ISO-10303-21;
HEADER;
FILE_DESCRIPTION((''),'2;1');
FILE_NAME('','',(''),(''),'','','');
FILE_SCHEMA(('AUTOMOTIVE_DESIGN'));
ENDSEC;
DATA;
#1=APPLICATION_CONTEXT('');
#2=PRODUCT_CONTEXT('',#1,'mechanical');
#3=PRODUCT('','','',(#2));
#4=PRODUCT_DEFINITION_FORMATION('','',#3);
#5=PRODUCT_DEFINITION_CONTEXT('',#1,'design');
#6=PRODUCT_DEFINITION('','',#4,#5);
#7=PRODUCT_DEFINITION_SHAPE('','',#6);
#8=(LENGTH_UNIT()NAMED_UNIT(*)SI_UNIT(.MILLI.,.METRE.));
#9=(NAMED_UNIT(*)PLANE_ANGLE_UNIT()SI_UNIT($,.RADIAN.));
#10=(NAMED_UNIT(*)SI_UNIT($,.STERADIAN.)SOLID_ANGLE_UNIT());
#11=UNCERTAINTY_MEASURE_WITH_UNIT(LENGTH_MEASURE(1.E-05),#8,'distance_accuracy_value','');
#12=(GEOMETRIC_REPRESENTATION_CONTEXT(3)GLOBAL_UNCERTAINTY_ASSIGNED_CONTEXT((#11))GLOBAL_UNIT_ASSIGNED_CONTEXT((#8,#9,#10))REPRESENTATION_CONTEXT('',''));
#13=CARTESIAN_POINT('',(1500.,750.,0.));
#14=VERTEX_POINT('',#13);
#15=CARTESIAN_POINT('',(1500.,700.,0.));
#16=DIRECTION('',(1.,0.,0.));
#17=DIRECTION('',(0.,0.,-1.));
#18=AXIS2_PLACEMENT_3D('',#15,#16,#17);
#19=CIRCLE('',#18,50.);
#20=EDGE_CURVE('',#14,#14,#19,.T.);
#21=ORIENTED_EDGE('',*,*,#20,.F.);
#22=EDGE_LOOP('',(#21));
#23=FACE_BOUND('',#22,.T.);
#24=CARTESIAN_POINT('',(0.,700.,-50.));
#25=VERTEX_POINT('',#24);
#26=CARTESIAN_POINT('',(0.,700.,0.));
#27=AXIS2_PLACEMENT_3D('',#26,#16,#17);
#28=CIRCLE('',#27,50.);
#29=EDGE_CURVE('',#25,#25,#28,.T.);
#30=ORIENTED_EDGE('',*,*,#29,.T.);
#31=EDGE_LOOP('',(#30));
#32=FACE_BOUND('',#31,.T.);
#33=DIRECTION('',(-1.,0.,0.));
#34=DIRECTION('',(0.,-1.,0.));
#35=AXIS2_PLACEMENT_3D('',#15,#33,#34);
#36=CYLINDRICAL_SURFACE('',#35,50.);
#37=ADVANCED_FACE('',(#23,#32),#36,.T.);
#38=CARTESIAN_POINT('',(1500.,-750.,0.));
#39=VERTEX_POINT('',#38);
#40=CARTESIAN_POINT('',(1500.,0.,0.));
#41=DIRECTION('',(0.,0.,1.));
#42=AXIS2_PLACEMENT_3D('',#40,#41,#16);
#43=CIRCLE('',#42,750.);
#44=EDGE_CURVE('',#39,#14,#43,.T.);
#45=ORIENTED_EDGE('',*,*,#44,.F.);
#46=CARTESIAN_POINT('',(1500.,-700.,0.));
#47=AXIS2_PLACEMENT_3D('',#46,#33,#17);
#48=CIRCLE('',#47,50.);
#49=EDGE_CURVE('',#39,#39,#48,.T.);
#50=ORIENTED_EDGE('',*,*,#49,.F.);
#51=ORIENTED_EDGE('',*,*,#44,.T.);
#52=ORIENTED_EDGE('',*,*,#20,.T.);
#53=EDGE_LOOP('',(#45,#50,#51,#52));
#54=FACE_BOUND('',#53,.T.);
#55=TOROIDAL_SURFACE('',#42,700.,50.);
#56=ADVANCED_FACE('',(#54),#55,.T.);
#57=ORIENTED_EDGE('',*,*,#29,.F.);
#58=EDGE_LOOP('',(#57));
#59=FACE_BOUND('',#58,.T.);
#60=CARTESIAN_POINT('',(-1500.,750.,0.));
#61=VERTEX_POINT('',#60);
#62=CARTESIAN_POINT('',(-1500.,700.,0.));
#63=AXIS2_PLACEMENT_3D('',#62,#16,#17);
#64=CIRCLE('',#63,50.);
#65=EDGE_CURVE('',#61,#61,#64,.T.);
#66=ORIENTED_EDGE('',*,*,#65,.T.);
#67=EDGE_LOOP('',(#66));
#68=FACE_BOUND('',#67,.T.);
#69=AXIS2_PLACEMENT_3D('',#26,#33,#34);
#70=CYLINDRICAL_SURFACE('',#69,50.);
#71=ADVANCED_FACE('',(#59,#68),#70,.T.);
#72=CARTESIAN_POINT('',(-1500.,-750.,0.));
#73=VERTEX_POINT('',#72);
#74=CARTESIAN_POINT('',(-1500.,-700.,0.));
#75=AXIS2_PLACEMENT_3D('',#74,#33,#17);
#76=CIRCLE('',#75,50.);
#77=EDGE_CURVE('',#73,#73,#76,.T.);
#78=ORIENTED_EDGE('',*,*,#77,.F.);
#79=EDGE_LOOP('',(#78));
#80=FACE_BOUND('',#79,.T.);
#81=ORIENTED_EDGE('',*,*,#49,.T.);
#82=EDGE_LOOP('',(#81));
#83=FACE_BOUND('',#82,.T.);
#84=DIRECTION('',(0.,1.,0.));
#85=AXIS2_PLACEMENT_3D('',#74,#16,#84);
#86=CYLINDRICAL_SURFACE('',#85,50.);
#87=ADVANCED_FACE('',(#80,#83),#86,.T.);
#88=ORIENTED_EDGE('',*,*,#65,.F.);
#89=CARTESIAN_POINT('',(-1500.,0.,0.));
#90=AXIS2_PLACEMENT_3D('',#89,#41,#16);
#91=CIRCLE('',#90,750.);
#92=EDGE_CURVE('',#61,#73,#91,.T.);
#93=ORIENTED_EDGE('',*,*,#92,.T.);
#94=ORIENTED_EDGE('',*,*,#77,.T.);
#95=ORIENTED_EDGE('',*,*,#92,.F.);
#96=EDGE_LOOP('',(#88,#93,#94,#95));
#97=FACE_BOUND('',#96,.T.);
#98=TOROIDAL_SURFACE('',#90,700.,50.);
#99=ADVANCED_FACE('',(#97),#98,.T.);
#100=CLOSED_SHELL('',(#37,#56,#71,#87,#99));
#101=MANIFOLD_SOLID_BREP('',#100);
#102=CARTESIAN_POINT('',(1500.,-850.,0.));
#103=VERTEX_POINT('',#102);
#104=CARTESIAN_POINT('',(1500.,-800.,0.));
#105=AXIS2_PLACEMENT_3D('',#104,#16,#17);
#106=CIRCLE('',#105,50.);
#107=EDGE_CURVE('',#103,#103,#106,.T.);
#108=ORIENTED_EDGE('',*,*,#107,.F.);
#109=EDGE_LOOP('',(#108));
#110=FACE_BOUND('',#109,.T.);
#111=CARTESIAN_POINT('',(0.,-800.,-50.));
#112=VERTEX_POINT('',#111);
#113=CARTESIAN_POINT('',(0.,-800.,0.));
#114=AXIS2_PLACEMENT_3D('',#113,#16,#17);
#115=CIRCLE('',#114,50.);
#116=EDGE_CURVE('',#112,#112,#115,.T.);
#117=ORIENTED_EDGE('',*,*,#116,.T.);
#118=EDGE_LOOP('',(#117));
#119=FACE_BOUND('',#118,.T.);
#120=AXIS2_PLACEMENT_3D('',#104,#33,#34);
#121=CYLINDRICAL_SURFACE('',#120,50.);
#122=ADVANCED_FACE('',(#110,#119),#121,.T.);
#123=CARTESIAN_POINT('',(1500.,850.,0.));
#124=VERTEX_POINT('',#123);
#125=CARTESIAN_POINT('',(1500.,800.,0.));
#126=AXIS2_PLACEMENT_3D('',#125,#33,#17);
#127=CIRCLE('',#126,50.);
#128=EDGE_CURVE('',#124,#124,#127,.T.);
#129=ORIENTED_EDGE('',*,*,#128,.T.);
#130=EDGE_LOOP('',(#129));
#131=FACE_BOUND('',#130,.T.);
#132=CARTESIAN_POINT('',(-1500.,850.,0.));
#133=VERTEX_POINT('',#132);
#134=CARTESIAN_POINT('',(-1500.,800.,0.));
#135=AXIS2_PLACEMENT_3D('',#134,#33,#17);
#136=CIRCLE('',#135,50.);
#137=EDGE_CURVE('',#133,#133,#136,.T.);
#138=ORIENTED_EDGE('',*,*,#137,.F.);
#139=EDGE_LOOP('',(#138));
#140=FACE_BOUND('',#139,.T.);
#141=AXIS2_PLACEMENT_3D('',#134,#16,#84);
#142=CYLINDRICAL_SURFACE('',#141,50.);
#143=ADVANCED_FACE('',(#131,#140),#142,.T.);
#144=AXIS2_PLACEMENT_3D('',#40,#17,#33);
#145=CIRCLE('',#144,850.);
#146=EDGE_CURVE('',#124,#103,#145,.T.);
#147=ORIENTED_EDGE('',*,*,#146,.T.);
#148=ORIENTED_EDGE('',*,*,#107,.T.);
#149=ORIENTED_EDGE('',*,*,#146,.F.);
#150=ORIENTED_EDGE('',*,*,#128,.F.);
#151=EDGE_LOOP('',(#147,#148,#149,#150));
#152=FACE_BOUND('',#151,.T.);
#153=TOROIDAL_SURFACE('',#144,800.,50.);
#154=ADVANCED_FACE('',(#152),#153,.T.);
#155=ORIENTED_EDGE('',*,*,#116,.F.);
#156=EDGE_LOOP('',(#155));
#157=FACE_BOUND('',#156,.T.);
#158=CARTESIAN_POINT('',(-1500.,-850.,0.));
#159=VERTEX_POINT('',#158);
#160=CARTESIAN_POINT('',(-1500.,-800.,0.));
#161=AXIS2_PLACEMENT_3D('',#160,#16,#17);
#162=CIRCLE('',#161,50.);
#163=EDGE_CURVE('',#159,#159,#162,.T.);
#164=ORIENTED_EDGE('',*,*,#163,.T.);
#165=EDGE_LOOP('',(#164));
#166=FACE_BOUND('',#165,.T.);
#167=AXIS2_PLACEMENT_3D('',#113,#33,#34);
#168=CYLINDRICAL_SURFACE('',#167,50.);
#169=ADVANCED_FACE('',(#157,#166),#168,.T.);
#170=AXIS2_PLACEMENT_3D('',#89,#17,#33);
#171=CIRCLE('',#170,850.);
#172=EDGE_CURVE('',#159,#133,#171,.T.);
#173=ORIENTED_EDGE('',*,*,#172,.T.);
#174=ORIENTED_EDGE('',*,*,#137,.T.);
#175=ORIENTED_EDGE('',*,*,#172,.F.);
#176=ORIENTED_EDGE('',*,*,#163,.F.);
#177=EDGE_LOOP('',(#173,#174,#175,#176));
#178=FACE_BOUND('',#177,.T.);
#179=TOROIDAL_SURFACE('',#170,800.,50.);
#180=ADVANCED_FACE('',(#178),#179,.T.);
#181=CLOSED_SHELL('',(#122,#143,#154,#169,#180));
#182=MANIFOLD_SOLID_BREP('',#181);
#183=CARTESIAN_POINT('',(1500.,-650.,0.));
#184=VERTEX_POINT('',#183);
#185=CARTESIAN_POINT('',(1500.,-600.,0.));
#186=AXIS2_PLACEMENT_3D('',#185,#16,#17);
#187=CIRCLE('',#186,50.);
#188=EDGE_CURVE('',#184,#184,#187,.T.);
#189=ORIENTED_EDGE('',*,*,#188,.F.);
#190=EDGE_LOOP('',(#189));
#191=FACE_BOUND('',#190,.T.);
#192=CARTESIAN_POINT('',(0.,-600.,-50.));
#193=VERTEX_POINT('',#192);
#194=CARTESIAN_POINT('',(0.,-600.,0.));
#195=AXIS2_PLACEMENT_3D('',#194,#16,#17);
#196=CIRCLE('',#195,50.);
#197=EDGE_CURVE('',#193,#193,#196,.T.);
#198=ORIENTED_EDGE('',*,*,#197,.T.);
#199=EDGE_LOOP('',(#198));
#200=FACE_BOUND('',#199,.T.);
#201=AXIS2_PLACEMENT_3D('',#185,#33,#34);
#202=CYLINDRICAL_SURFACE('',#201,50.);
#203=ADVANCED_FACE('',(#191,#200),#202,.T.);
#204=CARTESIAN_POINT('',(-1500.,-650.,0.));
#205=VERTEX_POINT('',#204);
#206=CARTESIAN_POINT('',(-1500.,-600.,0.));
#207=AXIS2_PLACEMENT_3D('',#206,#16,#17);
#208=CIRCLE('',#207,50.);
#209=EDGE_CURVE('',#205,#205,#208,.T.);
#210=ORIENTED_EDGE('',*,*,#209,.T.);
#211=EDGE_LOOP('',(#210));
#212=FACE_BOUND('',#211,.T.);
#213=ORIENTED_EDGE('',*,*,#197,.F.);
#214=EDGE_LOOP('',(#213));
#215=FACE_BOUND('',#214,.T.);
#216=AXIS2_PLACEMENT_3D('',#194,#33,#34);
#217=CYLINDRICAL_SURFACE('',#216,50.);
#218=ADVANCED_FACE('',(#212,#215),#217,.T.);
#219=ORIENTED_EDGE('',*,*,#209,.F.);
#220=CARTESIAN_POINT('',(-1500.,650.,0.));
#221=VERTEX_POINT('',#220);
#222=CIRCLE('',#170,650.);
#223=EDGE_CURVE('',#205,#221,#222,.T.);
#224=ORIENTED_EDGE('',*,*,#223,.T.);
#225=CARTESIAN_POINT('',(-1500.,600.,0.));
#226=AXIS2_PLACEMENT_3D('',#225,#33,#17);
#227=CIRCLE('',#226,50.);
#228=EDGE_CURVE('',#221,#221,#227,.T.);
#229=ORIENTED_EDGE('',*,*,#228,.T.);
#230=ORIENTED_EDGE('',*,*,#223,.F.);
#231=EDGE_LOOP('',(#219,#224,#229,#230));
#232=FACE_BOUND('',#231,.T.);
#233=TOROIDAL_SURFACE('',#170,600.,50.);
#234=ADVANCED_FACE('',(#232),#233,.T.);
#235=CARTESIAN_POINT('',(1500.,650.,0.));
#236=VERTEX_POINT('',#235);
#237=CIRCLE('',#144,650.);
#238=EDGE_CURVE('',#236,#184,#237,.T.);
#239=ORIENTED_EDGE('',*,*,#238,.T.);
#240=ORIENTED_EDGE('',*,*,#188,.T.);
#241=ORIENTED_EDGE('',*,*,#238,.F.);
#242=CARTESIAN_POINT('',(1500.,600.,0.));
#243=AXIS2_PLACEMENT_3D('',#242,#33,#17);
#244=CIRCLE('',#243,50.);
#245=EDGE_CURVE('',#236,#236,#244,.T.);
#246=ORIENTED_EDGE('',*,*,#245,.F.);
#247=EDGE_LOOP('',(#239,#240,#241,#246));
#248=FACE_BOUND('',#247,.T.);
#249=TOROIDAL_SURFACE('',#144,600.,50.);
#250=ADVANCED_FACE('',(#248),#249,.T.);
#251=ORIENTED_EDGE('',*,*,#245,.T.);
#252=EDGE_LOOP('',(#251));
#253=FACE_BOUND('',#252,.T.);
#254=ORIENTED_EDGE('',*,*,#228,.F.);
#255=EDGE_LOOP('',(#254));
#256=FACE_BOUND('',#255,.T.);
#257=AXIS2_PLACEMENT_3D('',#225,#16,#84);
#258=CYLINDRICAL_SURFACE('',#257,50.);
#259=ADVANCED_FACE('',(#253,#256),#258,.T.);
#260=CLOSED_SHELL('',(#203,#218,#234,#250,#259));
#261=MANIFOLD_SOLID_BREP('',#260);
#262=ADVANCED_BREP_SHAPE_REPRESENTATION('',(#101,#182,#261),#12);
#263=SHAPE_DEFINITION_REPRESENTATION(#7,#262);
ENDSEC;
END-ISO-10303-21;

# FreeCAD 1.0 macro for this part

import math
import FreeCAD as App
import Part
import Sketcher
from FreeCAD import Vector

doc = App.newDocument("Part")
body = doc.addObject("PartDesign::Body", "Body")

sketch1 = doc.addObject("Sketcher::SketchObject", "Sketch")
body.addObject(sketch1)
sketch1.AttachmentSupport = (doc.YZ_Plane, [""])
sketch1.MapMode = "FlatFace"
sketch1.addGeometry(Part.Circle(Vector(-800, 0, 0), Vector(0, 0, 1), 50), False)
sketch1.addConstraint([
    Sketcher.Constraint("PointOnObject", 0, 3, -1),
    Sketcher.Constraint("Diameter", 0, 100.0),
    Sketcher.Constraint("DistanceX", 0, 3, -1, 1, 800.0),
])

sketch2 = doc.addObject("Sketcher::SketchObject", "Sketch001")
body.addObject(sketch2)
sketch2.AttachmentSupport = (doc.XY_Plane, [""])
sketch2.MapMode = "FlatFace"
sketch2.addGeometry([
    Part.LineSegment(Vector(-1500, 800, 0), Vector(1500, 800, 0)),
    Part.ArcOfCircle(Part.Circle(Vector(1500, 0, 0), Vector(0, 0, 1), 800), math.radians(-90), math.radians(90)),
    Part.LineSegment(Vector(1500, -800, 0), Vector(-1500, -800, 0)),
    Part.ArcOfCircle(Part.Circle(Vector(-1500, 0, 0), Vector(0, 0, 1), 800), math.radians(90), math.radians(270)),
], False)
sketch2.addConstraint([
    Sketcher.Constraint("Coincident", 0, 2, 1, 2),
    Sketcher.Constraint("Coincident", 1, 1, 2, 1),
    Sketcher.Constraint("Coincident", 2, 2, 3, 2),
    Sketcher.Constraint("Coincident", 3, 1, 0, 1),
    Sketcher.Constraint("Horizontal", 0),
    Sketcher.Constraint("Horizontal", 2),
    Sketcher.Constraint("Symmetric", 1, 3, 3, 3, -1, 1),
    Sketcher.Constraint("Vertical", 1, 3, 0, 2),
    Sketcher.Constraint("Vertical", 3, 3, 2, 2),
    Sketcher.Constraint("Equal", 0, 2),
    Sketcher.Constraint("Radius", 1, 800.0),
    Sketcher.Constraint("DistanceX", 0, 1, 0, 2, 3000.0),
    Sketcher.Constraint("DistanceX", -1, 1, 1, 3, 1500.0),
])
doc.recompute()

additivepipe = doc.addObject("PartDesign::AdditivePipe", "AdditivePipe")
body.addObject(additivepipe)
additivepipe.Profile = sketch1
additivepipe.Spine = (sketch2, ["Edge1", "Edge2", "Edge3", "Edge4"])
body2 = doc.addObject("PartDesign::Body", "Body001")

sketch3 = doc.addObject("Sketcher::SketchObject", "Sketch002")
body2.addObject(sketch3)
sketch3.AttachmentSupport = (doc.getObject("YZ_Plane001"), [""])
sketch3.MapMode = "FlatFace"
sketch3.addGeometry(Part.Circle(Vector(700, 0, 0), Vector(0, 0, 1), 50), False)
sketch3.addConstraint([
    Sketcher.Constraint("PointOnObject", 0, 3, -1),
    Sketcher.Constraint("Diameter", 0, 100.0),
    Sketcher.Constraint("DistanceX", -1, 1, 0, 3, 700.0),
])

sketch4 = doc.addObject("Sketcher::SketchObject", "Sketch003")
body2.addObject(sketch4)
sketch4.AttachmentSupport = (doc.getObject("XY_Plane001"), [""])
sketch4.MapMode = "FlatFace"
sketch4.addGeometry([
    Part.LineSegment(Vector(-1500, 700, 0), Vector(1500, 700, 0)),
    Part.ArcOfCircle(Part.Circle(Vector(1500, 0, 0), Vector(0, 0, 1), 700), math.radians(-90), math.radians(90)),
    Part.LineSegment(Vector(1500, -700, 0), Vector(-1500, -700, 0)),
    Part.ArcOfCircle(Part.Circle(Vector(-1500, 0, 0), Vector(0, 0, 1), 700), math.radians(90), math.radians(270)),
], False)
sketch4.addConstraint([
    Sketcher.Constraint("Tangent", 0, 2, 1, 2),
    Sketcher.Constraint("Coincident", 1, 1, 2, 1),
    Sketcher.Constraint("Tangent", 2, 2, 3, 2),
    Sketcher.Constraint("Coincident", 3, 1, 0, 1),
    Sketcher.Constraint("Horizontal", 0),
    Sketcher.Constraint("Horizontal", 2),
    Sketcher.Constraint("Symmetric", 1, 3, 3, 3, -1, 1),
    Sketcher.Constraint("Equal", 0, 2),
    Sketcher.Constraint("Radius", 1, 700.0),
    Sketcher.Constraint("DistanceX", 0, 1, 0, 2, 3000.0),
    Sketcher.Constraint("DistanceX", -1, 1, 1, 3, 1500.0),
])
doc.recompute()

additivepipe2 = doc.addObject("PartDesign::AdditivePipe", "AdditivePipe001")
body2.addObject(additivepipe2)
additivepipe2.Profile = sketch3
additivepipe2.Spine = (sketch4, ["Edge1", "Edge2", "Edge3", "Edge4"])
body3 = doc.addObject("PartDesign::Body", "Body002")

sketch5 = doc.addObject("Sketcher::SketchObject", "Sketch004")
body3.addObject(sketch5)
sketch5.AttachmentSupport = (doc.getObject("YZ_Plane002"), [""])
sketch5.MapMode = "FlatFace"
sketch5.addGeometry(Part.Circle(Vector(-600, 0, 0), Vector(0, 0, 1), 50), False)
sketch5.addConstraint([
    Sketcher.Constraint("PointOnObject", 0, 3, -1),
    Sketcher.Constraint("Diameter", 0, 100.0),
    Sketcher.Constraint("DistanceX", 0, 3, -1, 1, 600.0),
])

sketch6 = doc.addObject("Sketcher::SketchObject", "Sketch005")
body3.addObject(sketch6)
sketch6.AttachmentSupport = (doc.getObject("XY_Plane002"), [""])
sketch6.MapMode = "FlatFace"
sketch6.addGeometry([
    Part.LineSegment(Vector(-1500, 600, 0), Vector(1500, 600, 0)),
    Part.ArcOfCircle(Part.Circle(Vector(1500, 0, 0), Vector(0, 0, 1), 600), math.radians(-90), math.radians(90)),
    Part.LineSegment(Vector(1500, -600, 0), Vector(-1500, -600, 0)),
    Part.ArcOfCircle(Part.Circle(Vector(-1500, 0, 0), Vector(0, 0, 1), 600), math.radians(90), math.radians(270)),
], False)
sketch6.addConstraint([
    Sketcher.Constraint("Tangent", 0, 2, 1, 2),
    Sketcher.Constraint("Tangent", 1, 1, 2, 1),
    Sketcher.Constraint("Tangent", 2, 2, 3, 2),
    Sketcher.Constraint("Tangent", 3, 1, 0, 1),
    Sketcher.Constraint("Horizontal", 0),
    Sketcher.Constraint("Horizontal", 2),
    Sketcher.Constraint("Symmetric", 1, 3, 3, 3, -1, 1),
    Sketcher.Constraint("Radius", 1, 600.0),
    Sketcher.Constraint("DistanceX", 0, 1, 0, 2, 3000.0),
])
doc.recompute()

additivepipe3 = doc.addObject("PartDesign::AdditivePipe", "AdditivePipe002")
body3.addObject(additivepipe3)
additivepipe3.Profile = sketch5
additivepipe3.Spine = (sketch6, ["Edge1", "Edge2", "Edge3", "Edge4"])

doc.recompute()
